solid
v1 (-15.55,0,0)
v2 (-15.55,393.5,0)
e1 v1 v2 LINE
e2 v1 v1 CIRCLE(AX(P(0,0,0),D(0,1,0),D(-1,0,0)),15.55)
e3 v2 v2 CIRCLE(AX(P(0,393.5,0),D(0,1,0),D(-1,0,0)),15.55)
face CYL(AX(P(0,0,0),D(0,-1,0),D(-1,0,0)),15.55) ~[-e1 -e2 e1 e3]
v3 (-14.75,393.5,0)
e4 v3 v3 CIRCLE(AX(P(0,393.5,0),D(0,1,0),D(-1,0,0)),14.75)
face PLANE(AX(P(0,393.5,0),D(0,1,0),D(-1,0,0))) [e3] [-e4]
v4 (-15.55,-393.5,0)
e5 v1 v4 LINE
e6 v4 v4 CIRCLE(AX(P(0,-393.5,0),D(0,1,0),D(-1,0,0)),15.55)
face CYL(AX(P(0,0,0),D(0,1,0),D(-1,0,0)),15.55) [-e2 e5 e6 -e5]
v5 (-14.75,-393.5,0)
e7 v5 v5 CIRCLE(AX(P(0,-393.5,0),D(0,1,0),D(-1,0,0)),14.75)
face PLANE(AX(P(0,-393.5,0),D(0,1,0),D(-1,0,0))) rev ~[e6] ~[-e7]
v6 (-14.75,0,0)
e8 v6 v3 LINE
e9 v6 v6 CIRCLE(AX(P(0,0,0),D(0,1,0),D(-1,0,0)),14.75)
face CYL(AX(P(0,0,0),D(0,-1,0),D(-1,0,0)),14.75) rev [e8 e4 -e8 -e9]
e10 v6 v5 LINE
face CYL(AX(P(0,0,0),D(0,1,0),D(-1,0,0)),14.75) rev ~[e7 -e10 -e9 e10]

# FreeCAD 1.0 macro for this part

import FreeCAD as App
import Part
import Sketcher

V = App.Vector

doc = App.newDocument("Part")
body = doc.addObject("PartDesign::Body", "Body")

# Sketch on XZ plane
sketch1 = body.newObject("Sketcher::SketchObject", "Sketch")
sketch1.AttachmentSupport = (doc.getObject("XZ_Plane"), [""])
sketch1.MapMode = "FlatFace"
sketch1.addGeometry(Part.Circle(V(0, 0, 0), V(0, 0, 1), 15.55), False)
sketch1.addGeometry(Part.Circle(V(0, 0, 0), V(0, 0, 1), 14.75), False)
sketch1.addConstraint(Sketcher.Constraint("Coincident", 0, 3, -1, 1))
sketch1.addConstraint(Sketcher.Constraint("Coincident", 1, 3, -1, 1))
sketch1.addConstraint(Sketcher.Constraint("Diameter", 0, 31.1))
sketch1.addConstraint(Sketcher.Constraint("Diameter", 1, 29.5))
pad1 = body.newObject("PartDesign::Pad", "Pad")
pad1.Profile = sketch1
pad1.Length = 787
pad1.Midplane = True

doc.recompute()
